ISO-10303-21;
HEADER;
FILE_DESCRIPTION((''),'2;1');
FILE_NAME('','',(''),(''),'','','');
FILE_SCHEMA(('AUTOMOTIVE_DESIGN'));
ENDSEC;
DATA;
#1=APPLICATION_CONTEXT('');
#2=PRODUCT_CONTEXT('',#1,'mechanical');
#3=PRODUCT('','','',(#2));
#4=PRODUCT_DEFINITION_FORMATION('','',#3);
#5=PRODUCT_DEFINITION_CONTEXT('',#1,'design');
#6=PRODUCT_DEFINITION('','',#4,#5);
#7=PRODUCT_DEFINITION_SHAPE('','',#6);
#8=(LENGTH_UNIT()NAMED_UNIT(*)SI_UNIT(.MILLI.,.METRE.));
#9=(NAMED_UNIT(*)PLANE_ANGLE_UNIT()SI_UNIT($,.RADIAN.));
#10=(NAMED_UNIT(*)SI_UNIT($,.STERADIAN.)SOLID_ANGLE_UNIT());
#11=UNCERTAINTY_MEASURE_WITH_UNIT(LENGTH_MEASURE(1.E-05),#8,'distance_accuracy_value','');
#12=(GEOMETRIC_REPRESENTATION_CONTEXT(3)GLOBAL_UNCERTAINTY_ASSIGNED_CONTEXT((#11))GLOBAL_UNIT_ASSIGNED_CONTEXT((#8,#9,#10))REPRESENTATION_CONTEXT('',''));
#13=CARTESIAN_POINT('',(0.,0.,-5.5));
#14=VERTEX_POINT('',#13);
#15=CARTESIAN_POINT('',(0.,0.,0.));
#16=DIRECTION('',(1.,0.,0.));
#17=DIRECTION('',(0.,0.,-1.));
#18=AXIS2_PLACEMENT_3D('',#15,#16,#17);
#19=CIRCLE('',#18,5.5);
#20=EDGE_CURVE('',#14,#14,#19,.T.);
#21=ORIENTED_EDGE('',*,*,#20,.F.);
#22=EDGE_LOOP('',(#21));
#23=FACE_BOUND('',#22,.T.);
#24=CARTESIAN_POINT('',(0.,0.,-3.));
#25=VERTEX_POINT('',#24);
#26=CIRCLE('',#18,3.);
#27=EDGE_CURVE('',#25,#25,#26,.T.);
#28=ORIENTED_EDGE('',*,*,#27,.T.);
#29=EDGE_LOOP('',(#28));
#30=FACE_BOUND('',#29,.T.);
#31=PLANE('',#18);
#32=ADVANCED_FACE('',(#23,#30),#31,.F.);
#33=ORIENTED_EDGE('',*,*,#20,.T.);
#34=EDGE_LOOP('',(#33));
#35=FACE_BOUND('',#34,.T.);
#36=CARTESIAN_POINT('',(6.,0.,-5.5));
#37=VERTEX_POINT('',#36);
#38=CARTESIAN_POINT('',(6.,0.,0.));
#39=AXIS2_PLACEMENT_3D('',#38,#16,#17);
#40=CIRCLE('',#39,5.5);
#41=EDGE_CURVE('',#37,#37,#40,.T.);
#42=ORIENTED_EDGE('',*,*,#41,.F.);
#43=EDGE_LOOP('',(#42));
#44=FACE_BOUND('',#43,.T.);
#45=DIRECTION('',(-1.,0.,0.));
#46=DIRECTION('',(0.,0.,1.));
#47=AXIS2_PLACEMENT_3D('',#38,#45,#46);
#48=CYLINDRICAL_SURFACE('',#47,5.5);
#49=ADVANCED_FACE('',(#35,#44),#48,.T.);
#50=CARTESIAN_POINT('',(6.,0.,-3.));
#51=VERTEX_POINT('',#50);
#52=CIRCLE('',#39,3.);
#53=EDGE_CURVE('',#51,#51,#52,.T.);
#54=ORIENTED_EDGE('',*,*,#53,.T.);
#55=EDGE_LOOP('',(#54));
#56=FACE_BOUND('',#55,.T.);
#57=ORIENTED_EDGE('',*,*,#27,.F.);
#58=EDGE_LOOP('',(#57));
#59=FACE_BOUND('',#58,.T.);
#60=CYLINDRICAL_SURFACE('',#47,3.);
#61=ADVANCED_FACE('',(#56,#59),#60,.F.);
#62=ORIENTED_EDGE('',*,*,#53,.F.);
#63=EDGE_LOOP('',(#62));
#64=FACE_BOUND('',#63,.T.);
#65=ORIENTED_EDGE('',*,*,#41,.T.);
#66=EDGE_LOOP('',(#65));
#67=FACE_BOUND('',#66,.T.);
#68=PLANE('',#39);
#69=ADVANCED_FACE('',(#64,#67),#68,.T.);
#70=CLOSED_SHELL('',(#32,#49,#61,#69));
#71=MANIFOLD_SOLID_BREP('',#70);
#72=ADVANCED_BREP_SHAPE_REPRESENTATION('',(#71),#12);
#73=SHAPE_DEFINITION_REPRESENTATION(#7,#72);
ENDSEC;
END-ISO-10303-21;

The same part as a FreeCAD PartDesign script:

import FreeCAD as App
import Part
import Sketcher

V = App.Vector

doc = App.newDocument("Part")
body = doc.addObject("PartDesign::Body", "Body")

# Sketch on YZ plane
sketch1 = body.newObject("Sketcher::SketchObject", "Sketch")
sketch1.AttachmentSupport = (doc.getObject("YZ_Plane"), [""])
sketch1.MapMode = "FlatFace"
sketch1.addGeometry([
    Part.Circle(V(0, 0, 0), V(0, 0, 1), 5.5),
    Part.Circle(V(0, 0, 0), V(0, 0, 1), 3),
], False)
sketch1.addConstraint([
    Sketcher.Constraint("Coincident", 0, 3, -1, 1),
    Sketcher.Constraint("Coincident", 1, 3, -1, 1),
    Sketcher.Constraint("Diameter", 0, 11.0),
    Sketcher.Constraint("Diameter", 1, 6.0),
])
pad1 = body.newObject("PartDesign::Pad", "Pad")
pad1.Profile = sketch1
pad1.Length = 6

doc.recompute()
